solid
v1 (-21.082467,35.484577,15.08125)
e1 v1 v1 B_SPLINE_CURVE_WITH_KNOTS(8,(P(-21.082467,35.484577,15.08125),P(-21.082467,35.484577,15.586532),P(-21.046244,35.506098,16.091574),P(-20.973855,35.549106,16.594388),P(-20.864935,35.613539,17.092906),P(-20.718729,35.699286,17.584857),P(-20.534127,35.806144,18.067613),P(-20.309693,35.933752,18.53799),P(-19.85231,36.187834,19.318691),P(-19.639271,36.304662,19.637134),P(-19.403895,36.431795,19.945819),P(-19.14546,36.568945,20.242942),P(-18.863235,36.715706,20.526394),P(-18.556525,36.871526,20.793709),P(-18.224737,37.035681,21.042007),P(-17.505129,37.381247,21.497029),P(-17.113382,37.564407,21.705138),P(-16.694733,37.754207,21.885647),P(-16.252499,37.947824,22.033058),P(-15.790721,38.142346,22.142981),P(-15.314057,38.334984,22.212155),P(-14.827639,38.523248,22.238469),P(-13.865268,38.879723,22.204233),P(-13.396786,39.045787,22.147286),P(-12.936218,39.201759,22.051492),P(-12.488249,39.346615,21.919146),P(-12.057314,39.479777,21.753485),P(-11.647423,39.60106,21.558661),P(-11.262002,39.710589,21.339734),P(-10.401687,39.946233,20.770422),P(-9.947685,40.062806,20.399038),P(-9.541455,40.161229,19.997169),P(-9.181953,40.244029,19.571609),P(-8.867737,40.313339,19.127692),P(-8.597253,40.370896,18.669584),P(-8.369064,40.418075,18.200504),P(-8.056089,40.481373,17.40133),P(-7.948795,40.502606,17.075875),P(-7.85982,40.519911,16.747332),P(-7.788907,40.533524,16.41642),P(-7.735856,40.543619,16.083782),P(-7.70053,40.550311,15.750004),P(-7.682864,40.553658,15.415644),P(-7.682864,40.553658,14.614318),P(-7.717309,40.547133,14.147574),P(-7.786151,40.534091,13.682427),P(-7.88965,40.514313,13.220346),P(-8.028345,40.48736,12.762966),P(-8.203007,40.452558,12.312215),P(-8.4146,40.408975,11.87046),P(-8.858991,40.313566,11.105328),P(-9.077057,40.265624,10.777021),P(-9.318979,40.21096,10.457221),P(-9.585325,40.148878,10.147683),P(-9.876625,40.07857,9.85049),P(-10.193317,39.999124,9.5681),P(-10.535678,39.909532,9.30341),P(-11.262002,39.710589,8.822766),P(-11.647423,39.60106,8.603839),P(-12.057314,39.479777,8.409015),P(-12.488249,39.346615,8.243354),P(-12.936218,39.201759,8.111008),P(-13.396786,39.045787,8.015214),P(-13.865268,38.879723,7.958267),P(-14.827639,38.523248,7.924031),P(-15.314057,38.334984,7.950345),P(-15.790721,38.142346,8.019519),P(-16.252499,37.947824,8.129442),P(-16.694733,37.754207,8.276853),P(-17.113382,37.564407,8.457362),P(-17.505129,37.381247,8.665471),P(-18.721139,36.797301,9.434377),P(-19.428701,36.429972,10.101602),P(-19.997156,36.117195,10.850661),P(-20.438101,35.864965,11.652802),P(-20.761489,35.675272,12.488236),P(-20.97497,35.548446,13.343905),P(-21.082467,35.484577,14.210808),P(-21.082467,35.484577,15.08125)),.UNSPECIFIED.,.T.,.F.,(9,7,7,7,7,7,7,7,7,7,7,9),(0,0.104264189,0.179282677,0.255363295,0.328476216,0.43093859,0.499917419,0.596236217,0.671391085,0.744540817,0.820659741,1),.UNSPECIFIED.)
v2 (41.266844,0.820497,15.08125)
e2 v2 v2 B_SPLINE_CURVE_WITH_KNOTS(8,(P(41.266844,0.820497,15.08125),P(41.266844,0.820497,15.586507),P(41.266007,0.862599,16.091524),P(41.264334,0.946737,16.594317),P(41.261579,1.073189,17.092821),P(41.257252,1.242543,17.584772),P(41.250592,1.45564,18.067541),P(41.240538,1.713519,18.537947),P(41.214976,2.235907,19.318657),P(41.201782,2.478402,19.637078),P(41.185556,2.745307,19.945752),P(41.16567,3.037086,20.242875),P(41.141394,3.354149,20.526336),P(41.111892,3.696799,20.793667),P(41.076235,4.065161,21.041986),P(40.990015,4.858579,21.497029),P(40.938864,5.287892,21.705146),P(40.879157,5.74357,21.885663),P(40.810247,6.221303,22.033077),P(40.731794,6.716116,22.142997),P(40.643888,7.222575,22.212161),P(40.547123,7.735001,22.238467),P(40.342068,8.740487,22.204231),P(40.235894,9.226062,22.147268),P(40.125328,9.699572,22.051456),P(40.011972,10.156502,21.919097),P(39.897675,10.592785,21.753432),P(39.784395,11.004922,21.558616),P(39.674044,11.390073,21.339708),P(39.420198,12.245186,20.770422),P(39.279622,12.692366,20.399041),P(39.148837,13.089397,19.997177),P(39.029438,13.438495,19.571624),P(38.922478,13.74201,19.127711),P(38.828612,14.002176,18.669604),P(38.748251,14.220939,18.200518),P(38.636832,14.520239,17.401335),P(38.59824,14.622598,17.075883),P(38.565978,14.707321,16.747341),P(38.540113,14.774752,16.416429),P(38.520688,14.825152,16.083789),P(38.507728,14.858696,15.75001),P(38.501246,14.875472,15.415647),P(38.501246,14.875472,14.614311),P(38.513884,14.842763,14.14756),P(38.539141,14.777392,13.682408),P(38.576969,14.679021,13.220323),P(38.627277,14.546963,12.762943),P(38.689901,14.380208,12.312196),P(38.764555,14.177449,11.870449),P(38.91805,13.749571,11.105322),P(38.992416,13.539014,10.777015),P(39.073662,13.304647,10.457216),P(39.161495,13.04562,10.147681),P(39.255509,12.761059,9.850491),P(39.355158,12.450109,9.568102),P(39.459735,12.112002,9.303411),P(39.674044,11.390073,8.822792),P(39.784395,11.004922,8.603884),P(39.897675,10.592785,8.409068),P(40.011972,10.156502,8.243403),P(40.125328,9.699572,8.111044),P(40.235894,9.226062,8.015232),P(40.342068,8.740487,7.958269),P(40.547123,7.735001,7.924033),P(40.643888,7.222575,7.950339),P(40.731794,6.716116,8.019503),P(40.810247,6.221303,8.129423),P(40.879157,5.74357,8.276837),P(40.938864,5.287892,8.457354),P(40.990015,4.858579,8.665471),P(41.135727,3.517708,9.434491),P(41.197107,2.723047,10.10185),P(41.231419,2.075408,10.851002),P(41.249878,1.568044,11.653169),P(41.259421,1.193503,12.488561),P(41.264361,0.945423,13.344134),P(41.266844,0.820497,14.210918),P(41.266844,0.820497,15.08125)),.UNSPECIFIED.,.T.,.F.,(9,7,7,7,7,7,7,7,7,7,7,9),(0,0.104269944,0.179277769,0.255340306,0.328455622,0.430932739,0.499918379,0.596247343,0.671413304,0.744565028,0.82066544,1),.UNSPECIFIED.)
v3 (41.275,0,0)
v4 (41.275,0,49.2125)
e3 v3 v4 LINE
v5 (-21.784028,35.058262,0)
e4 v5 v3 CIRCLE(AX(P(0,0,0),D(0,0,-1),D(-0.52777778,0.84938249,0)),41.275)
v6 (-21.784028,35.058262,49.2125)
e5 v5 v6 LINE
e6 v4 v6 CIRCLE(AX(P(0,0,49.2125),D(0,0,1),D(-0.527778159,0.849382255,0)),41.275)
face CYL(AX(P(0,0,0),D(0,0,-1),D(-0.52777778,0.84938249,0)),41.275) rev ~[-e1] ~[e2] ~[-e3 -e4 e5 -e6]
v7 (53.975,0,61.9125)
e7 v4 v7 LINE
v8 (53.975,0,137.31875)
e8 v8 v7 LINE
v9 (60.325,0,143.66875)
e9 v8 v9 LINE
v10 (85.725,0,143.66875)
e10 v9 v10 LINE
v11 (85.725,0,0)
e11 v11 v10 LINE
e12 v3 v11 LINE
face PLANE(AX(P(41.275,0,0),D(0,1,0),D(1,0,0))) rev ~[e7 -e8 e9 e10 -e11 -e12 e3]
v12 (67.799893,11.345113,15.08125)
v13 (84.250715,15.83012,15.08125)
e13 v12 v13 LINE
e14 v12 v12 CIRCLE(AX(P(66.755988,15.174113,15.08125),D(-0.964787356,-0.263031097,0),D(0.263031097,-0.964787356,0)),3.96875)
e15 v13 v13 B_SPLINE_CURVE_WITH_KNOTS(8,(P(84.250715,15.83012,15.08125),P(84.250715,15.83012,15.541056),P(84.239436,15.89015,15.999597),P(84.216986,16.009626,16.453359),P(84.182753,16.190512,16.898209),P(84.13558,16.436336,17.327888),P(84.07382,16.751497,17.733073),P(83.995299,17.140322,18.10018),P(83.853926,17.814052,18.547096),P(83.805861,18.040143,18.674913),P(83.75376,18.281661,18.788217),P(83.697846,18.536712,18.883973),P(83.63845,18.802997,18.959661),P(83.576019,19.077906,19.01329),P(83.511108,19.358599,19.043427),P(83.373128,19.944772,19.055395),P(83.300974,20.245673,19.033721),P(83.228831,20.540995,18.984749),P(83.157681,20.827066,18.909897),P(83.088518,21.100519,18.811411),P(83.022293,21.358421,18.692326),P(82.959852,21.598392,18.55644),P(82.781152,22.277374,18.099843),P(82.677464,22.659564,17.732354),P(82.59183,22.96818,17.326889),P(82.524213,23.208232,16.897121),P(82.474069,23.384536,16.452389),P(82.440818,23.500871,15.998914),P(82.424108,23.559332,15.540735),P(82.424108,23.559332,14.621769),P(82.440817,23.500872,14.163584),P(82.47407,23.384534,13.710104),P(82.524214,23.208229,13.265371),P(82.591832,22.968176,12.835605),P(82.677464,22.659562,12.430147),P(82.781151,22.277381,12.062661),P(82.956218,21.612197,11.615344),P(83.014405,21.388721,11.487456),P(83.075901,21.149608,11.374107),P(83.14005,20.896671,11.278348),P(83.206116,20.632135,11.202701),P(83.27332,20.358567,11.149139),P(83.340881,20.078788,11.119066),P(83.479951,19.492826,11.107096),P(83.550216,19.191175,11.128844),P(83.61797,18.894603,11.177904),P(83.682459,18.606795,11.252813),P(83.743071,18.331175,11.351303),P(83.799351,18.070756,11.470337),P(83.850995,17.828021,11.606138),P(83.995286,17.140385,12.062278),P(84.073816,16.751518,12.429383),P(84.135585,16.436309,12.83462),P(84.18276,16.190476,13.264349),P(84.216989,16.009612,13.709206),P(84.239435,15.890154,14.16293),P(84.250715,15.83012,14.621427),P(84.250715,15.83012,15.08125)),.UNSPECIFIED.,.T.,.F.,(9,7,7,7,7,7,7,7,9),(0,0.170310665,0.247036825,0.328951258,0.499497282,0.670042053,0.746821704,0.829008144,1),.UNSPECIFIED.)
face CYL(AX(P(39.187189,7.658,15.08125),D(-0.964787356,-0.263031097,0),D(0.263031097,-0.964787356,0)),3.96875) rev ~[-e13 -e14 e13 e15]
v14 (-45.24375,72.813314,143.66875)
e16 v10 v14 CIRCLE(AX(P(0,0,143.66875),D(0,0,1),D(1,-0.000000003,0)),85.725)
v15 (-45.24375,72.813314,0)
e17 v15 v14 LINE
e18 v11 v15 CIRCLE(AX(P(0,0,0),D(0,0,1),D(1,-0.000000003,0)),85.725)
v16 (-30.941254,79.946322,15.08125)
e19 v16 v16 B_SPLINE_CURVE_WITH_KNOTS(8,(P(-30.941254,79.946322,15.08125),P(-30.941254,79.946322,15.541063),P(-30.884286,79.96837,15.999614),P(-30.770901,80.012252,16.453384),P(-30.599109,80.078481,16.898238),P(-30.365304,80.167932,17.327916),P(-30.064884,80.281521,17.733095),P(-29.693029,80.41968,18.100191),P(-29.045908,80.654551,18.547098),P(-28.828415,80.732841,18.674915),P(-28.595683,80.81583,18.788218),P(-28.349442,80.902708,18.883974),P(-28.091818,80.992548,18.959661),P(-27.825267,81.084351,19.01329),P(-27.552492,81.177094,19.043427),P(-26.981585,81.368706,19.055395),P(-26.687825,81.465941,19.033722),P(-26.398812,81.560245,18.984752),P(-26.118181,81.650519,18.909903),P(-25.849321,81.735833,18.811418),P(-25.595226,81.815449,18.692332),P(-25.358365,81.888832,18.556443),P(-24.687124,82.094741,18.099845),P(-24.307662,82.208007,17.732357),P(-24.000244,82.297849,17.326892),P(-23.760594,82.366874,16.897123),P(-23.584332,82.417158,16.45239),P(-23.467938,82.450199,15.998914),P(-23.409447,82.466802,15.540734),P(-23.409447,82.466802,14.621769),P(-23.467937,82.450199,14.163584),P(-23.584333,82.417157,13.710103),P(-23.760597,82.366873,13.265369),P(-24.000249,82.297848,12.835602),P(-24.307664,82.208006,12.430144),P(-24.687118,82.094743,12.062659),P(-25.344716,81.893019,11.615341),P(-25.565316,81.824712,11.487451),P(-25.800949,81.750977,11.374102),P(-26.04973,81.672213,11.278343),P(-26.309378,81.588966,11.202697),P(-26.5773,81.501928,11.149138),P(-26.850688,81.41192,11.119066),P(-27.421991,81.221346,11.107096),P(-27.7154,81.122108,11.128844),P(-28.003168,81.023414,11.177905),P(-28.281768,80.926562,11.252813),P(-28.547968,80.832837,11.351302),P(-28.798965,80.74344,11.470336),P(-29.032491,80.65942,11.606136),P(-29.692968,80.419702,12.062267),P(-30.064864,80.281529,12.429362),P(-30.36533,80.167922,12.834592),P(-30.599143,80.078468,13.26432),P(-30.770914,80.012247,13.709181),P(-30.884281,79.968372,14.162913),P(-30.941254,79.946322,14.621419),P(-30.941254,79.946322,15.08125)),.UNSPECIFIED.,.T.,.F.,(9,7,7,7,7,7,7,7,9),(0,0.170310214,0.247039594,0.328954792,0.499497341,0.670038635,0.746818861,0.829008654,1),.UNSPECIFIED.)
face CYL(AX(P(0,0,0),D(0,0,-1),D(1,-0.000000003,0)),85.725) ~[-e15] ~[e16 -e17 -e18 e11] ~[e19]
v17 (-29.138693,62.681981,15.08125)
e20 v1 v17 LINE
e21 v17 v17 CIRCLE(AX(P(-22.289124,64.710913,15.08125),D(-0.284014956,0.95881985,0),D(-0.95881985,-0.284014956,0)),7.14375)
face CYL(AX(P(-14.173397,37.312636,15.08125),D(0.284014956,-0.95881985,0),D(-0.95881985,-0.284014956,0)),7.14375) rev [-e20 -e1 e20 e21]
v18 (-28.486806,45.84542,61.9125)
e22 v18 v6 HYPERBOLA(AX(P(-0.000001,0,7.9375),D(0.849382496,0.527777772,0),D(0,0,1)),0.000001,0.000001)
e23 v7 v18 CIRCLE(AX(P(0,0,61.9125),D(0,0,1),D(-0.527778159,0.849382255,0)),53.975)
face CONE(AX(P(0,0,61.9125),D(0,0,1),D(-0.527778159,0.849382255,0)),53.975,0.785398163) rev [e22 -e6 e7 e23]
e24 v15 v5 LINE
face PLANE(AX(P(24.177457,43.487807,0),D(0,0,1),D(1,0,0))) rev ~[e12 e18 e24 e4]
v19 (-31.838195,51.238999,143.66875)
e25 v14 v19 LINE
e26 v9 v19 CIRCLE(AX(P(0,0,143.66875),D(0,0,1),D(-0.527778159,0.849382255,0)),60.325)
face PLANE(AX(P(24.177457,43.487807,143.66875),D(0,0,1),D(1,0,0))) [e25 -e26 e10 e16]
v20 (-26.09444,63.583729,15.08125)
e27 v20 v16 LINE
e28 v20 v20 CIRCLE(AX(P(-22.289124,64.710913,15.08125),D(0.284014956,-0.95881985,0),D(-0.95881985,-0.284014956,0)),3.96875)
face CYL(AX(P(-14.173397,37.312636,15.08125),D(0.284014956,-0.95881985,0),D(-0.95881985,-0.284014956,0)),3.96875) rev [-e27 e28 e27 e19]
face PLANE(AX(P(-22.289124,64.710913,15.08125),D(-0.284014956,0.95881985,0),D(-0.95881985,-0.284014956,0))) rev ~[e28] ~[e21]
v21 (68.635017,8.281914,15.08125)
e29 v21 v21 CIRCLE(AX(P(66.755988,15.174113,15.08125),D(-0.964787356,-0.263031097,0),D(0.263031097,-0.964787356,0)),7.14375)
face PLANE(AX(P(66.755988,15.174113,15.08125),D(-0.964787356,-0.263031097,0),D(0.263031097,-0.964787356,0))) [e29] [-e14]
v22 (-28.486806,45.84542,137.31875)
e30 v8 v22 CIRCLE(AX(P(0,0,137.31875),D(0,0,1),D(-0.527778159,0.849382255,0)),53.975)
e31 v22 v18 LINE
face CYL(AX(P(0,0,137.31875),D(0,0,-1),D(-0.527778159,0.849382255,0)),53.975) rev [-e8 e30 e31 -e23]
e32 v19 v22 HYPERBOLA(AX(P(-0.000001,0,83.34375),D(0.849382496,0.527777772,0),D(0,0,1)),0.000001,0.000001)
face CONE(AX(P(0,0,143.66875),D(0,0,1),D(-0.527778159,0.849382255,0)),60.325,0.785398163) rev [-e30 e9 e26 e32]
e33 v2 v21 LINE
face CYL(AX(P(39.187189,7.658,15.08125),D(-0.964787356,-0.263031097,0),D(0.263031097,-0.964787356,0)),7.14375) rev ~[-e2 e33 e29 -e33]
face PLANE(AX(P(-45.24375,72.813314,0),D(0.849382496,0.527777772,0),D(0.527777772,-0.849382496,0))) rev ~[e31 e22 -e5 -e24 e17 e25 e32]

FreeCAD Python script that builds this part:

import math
import FreeCAD as App
import Part
import Sketcher
Q = App.Units.Quantity

doc = App.newDocument("Part")
params = doc.addObject("Spreadsheet::Sheet", "Params")
for row, (alias, value) in enumerate([
    ("sketch1_radius", "1.625 in"),
    ("sketch1_radius2", "3.375 in"),
    ("pad1_length", "5.65625 in"),
    ("sketch2_width", "0.75 in"),
    ("sketch2_height", "3.71875 in"),
    ("groove_angle", "360 deg"),
    ("sketch3_diameter", "0.3125 in"),
    ("pocket1_length", "3 in"),
    ("sketch4_diameter", "0.5625 in"),
    ("pocket2_length", "1.125 in"),
    ("sketch5_diameter", "0.5625 in"),
    ("pocket3_length", "1.125 in"),
    ("sketch6_diameter", "0.3125 in"),
    ("pocket4_length", "3 in"),
], start=1):
    params.set(f"A{row}", alias)
    params.set(f"B{row}", "=" + value)
    params.setAlias(f"B{row}", alias)

body = doc.addObject("PartDesign::Body", "Body")

# Sketch on XY plane
sketch1 = body.newObject("Sketcher::SketchObject", "Sketch")
sketch1.AttachmentSupport = (doc.getObject("XY_Plane"), [""])
sketch1.MapMode = "FlatFace"
sketch1.addGeometry([
    Part.ArcOfCircle(Part.Circle(App.Vector(0, 0, 0), App.Vector(0, 0, 1), 41), math.radians(0), math.radians(122)),
    Part.LineSegment(App.Vector(41, 0, 0), App.Vector(86, 0, 0)),
    Part.ArcOfCircle(Part.Circle(App.Vector(0, 0, 0), App.Vector(0, 0, 1), 86), math.radians(0), math.radians(122)),
    Part.LineSegment(App.Vector(-45, 73, 0), App.Vector(-22, 35, 0)),
], False)
sketch1.addConstraint([
    Sketcher.Constraint("Coincident", 0, 1, 1, 1),
    Sketcher.Constraint("Coincident", 1, 2, 2, 1),
    Sketcher.Constraint("Coincident", 2, 2, 3, 1),
    Sketcher.Constraint("Coincident", 3, 2, 0, 2),
    Sketcher.Constraint("Horizontal", 1),
    Sketcher.Constraint("Coincident", 0, 3, -1, 1),
    Sketcher.Constraint("Coincident", 2, 3, -1, 1),
    Sketcher.Constraint("PointOnObject", 0, 1, -1),
    Sketcher.Constraint("Radius", 0, Q("1.625 in")),
    Sketcher.Constraint("Radius", 2, Q("3.375 in")),
    Sketcher.Constraint("DistanceX", 2, 2, -1, 1, Q("1.78125 in")),
    Sketcher.Constraint("DistanceX", 3, 2, 2, 3, 21.784028),
])
sketch1.setExpression("Constraints[8]", "Params.sketch1_radius")
sketch1.setExpression("Constraints[9]", "Params.sketch1_radius2")
pad1 = body.newObject("PartDesign::Pad", "Pad")
pad1.Profile = sketch1
pad1.setExpression("Length", "Params.pad1_length")

# Sketch on an angled plane
sketch2 = body.newObject("Sketcher::SketchObject", "Sketch001")
sketch2.Placement = App.Placement(App.Vector(0, 0, 0), App.Rotation(App.Vector(0.527778159, -0.849382255, 0), App.Vector(0, 0, 1), App.Vector(-0.849382255, -0.527778159, 0), "ZXY"))
sketch2.addGeometry([
    Part.LineSegment(App.Vector(-54, 62, 0), App.Vector(-41, 49, 0)),  # 0
    Part.LineSegment(App.Vector(-41, 49, 0), App.Vector(-41, 144, 0)),  # 1
    Part.LineSegment(App.Vector(-41, 144, 0), App.Vector(-60, 144, 0)),  # 2
    Part.LineSegment(App.Vector(-60, 144, 0), App.Vector(-54, 137, 0)),  # 3
    Part.LineSegment(App.Vector(-54, 137, 0), App.Vector(-54, 62, 0)),  # 4
], False)
sketch2.addConstraint([
    Sketcher.Constraint("Coincident", 0, 2, 1, 1),
    Sketcher.Constraint("Coincident", 1, 2, 2, 1),
    Sketcher.Constraint("Coincident", 2, 2, 3, 1),
    Sketcher.Constraint("Coincident", 3, 2, 4, 1),
    Sketcher.Constraint("Coincident", 4, 2, 0, 1),
    Sketcher.Constraint("Vertical", 1),
    Sketcher.Constraint("Horizontal", 2),
    Sketcher.Constraint("Vertical", 4),
    Sketcher.Constraint("Parallel", 0, 3),
    Sketcher.Constraint("Angle", 0, Q("-45 deg")),
    Sketcher.Constraint("DistanceX", 2, 2, 2, 1, Q("0.75 in")),
    Sketcher.Constraint("DistanceX", 3, 2, 1, 2, Q("0.5 in")),
    Sketcher.Constraint("DistanceY", 1, 1, 1, 2, Q("3.71875 in")),
    Sketcher.Constraint("DistanceX", 0, 2, -1, 1, Q("1.625 in")),
    Sketcher.Constraint("DistanceY", -1, 1, 0, 2, Q("1.9375 in")),
])
sketch2.setExpression("Constraints[10]", "Params.sketch2_width")
sketch2.setExpression("Constraints[12]", "Params.sketch2_height")
groove = body.newObject("PartDesign::Groove", "Groove")
groove.Profile = sketch2
groove.ReferenceAxis = (sketch2, ["V_Axis"])
groove.setExpression("Angle", "Params.groove_angle")

# Sketch on an angled plane
sketch3 = body.newObject("Sketcher::SketchObject", "Sketch002")
sketch3.Placement = App.Placement(App.Vector(-11.304252, 38.162514, 0), App.Rotation(App.Vector(-0.95881985, -0.284014956, 0), App.Vector(0, 0, 1), App.Vector(-0.284014956, 0.95881985, 0), "ZXY"))
sketch3.addGeometry(Part.Circle(App.Vector(3, 15.1, 0), App.Vector(0, 0, 1), 4), False)
sketch3.addConstraint([
    Sketcher.Constraint("Diameter", 0, Q("0.3125 in")),
    Sketcher.Constraint("DistanceY", -1, 1, 0, 3, Q("0.59375 in")),
    Sketcher.Constraint("DistanceX", -1, 1, 0, 3, 2.992371),
])
sketch3.setExpression("Constraints[0]", "Params.sketch3_diameter")
pocket1 = body.newObject("PartDesign::Pocket", "Pocket")
pocket1.Profile = sketch3
pocket1.setExpression("Length", "Params.pocket1_length")
pocket1.Reversed = True

# Sketch on an angled plane
sketch4 = body.newObject("Sketcher::SketchObject", "Sketch003")
sketch4.Placement = App.Placement(App.Vector(-11.304252, 38.162514, 0), App.Rotation(App.Vector(-0.95881985, -0.284014956, 0), App.Vector(0, 0, 1), App.Vector(-0.284014956, 0.95881985, 0), "ZXY"))
sketch4.addGeometry(Part.Circle(App.Vector(3, 15, 0), App.Vector(0, 0, 1), 7), False)
sketch4.addConstraint([
    Sketcher.Constraint("Diameter", 0, Q("0.5625 in")),
    Sketcher.Constraint("DistanceY", -1, 1, 0, 3, Q("0.59375 in")),
    Sketcher.Constraint("DistanceX", -1, 1, 0, 3, 2.992371),
])
sketch4.setExpression("Constraints[0]", "Params.sketch4_diameter")
pocket2 = body.newObject("PartDesign::Pocket", "Pocket001")
pocket2.Profile = sketch4
pocket2.setExpression("Length", "Params.pocket2_length")
pocket2.Reversed = True

# Sketch on an angled plane
sketch5 = body.newObject("Sketcher::SketchObject", "Sketch004")
sketch5.Placement = App.Placement(App.Vector(38.419372, 10.474323, 0), App.Rotation(App.Vector(0.263031097, -0.964787356, 0), App.Vector(0, 0, 1), App.Vector(-0.964787356, -0.263031097, 0), "ZXY"))
sketch5.addGeometry(Part.Circle(App.Vector(3, 15, 0), App.Vector(0, 0, 1), 7), False)
sketch5.addConstraint([
    Sketcher.Constraint("Diameter", 0, Q("0.5625 in")),
    Sketcher.Constraint("DistanceY", -1, 1, 0, 3, Q("0.59375 in")),
    Sketcher.Constraint("DistanceX", -1, 1, 0, 3, 2.919113),
])
sketch5.setExpression("Constraints[0]", "Params.sketch5_diameter")
pocket3 = body.newObject("PartDesign::Pocket", "Pocket002")
pocket3.Profile = sketch5
pocket3.setExpression("Length", "Params.pocket3_length")

# Sketch on an angled plane
sketch6 = body.newObject("Sketcher::SketchObject", "Sketch005")
sketch6.Placement = App.Placement(App.Vector(38.419372, 10.474323, 0), App.Rotation(App.Vector(0.263031097, -0.964787356, 0), App.Vector(0, 0, 1), App.Vector(-0.964787356, -0.263031097, 0), "ZXY"))
sketch6.addGeometry(Part.Circle(App.Vector(2.9, 15.1, 0), App.Vector(0, 0, 1), 4), False)
sketch6.addConstraint([
    Sketcher.Constraint("Diameter", 0, Q("0.3125 in")),
    Sketcher.Constraint("DistanceY", -1, 1, 0, 3, Q("0.59375 in")),
    Sketcher.Constraint("DistanceX", -1, 1, 0, 3, 2.919113),
])
sketch6.setExpression("Constraints[0]", "Params.sketch6_diameter")
pocket4 = body.newObject("PartDesign::Pocket", "Pocket003")
pocket4.Profile = sketch6
pocket4.setExpression("Length", "Params.pocket4_length")

doc.recompute()
